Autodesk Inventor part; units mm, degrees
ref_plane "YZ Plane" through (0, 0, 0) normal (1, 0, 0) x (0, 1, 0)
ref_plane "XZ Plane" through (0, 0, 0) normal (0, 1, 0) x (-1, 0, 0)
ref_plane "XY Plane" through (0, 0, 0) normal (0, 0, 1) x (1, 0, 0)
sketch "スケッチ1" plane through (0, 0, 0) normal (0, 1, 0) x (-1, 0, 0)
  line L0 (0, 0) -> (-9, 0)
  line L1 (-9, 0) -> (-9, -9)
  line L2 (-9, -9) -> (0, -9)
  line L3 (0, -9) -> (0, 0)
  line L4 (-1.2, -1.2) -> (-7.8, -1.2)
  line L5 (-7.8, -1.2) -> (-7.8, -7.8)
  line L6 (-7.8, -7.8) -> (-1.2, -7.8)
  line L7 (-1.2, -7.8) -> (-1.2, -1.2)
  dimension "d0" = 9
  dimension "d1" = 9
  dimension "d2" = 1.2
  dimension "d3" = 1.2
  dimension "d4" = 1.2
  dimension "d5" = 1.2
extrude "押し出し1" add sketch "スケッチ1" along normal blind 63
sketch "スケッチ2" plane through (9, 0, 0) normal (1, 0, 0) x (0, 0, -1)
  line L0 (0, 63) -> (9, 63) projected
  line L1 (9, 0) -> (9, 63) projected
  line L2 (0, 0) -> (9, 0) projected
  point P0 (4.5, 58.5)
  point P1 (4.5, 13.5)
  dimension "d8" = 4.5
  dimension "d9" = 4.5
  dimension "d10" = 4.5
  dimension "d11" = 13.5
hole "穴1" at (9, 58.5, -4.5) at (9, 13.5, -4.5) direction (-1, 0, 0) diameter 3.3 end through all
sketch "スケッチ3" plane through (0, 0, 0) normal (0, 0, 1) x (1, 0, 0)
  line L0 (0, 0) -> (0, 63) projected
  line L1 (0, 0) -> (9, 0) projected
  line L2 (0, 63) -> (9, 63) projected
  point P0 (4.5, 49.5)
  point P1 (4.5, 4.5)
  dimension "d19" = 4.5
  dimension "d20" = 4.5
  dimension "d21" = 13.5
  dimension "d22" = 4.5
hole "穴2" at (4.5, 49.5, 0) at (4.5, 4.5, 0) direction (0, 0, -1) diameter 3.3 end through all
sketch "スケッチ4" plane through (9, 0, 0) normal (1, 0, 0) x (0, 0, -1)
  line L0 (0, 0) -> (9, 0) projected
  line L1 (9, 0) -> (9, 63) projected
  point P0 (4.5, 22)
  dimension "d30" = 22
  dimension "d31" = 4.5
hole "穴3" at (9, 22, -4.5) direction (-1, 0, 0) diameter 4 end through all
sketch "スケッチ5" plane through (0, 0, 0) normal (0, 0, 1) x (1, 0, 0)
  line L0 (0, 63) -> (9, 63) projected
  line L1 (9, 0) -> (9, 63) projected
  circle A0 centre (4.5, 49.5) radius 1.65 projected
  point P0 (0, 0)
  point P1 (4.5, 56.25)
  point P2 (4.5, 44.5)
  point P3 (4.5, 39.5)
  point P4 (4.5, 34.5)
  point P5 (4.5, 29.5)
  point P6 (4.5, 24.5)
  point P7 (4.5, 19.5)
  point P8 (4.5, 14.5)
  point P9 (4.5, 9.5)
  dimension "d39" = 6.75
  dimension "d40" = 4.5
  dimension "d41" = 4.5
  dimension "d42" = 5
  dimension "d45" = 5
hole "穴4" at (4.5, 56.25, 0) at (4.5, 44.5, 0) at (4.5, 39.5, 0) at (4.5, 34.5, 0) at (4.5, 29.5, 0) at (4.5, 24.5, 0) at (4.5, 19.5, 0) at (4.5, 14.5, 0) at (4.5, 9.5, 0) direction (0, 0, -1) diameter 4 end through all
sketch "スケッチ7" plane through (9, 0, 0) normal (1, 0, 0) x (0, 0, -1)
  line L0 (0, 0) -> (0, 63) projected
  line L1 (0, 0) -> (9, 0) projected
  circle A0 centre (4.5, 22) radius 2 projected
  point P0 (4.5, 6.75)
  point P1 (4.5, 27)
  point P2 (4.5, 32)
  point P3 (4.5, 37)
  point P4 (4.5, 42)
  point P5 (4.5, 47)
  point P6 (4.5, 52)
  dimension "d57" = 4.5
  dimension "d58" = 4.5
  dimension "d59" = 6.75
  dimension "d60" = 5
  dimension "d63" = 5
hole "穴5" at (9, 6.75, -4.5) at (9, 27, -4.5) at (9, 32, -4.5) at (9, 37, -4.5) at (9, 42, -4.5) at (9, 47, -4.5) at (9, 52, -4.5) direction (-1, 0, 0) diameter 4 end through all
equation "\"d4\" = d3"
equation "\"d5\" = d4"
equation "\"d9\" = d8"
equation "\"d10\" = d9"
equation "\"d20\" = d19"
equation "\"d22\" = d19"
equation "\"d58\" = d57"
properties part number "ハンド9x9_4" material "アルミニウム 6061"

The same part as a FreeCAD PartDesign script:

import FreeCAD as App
import Part
import Sketcher

doc = App.newDocument("Part")
body = doc.addObject("PartDesign::Body", "Body")

sketch1 = body.newObject("Sketcher::SketchObject", "Sketch")
sketch1.AttachmentSupport = (doc.getObject("XZ_Plane"), [""])
sketch1.MapMode = "FlatFace"
sketch1.addGeometry([
    Part.LineSegment(App.Vector(0, -9, 0), App.Vector(0, 0, 0)),
    Part.LineSegment(App.Vector(0, 0, 0), App.Vector(9, 0, 0)),
    Part.LineSegment(App.Vector(9, 0, 0), App.Vector(9, -9, 0)),
    Part.LineSegment(App.Vector(9, -9, 0), App.Vector(0, -9, 0)),
    Part.LineSegment(App.Vector(8, -1, 0), App.Vector(1, -1, 0)),
    Part.LineSegment(App.Vector(1, -1, 0), App.Vector(1, -8, 0)),
    Part.LineSegment(App.Vector(1, -8, 0), App.Vector(8, -8, 0)),
    Part.LineSegment(App.Vector(8, -8, 0), App.Vector(8, -1, 0)),
], False)
sketch1.addConstraint([
    Sketcher.Constraint("Coincident", 0, 2, 1, 1),
    Sketcher.Constraint("Coincident", 1, 2, 2, 1),
    Sketcher.Constraint("Coincident", 2, 2, 3, 1),
    Sketcher.Constraint("Coincident", 3, 2, 0, 1),
    Sketcher.Constraint("Coincident", 4, 2, 5, 1),
    Sketcher.Constraint("Coincident", 5, 2, 6, 1),
    Sketcher.Constraint("Coincident", 6, 2, 7, 1),
    Sketcher.Constraint("Coincident", 7, 2, 4, 1),
    Sketcher.Constraint("Vertical", 0),
    Sketcher.Constraint("Horizontal", 1),
    Sketcher.Constraint("Vertical", 2),
    Sketcher.Constraint("Horizontal", 3),
    Sketcher.Constraint("Horizontal", 4),
    Sketcher.Constraint("Vertical", 5),
    Sketcher.Constraint("Horizontal", 6),
    Sketcher.Constraint("Vertical", 7),
    Sketcher.Constraint("Coincident", 0, 2, -1, 1),
    Sketcher.Constraint("Equal", 3, 0),
    Sketcher.Constraint("Equal", 6, 5),
    Sketcher.Constraint("DistanceX", 1, 1, 1, 2, 9.0),
    Sketcher.Constraint("DistanceX", -1, 1, 4, 2, 1.2),
    Sketcher.Constraint("DistanceY", 4, 2, -1, 1, 1.2),
    Sketcher.Constraint("DistanceY", 3, 2, 5, 2, 1.2),
])
pad1 = body.newObject("PartDesign::Pad", "Pad")
pad1.Profile = sketch1
pad1.Length = 63
pad1.Reversed = True

sketch2 = body.newObject("Sketcher::SketchObject", "Sketch001")
sketch2.AttachmentSupport = (doc.getObject("YZ_Plane"), [""])
sketch2.MapMode = "FlatFace"
sketch2.AttachmentOffset = App.Placement(App.Vector(0, 0, 9), App.Rotation())
sketch2.addGeometry([
    Part.Circle(App.Vector(58.5, -4.5, 0), App.Vector(0, 0, 1), 1.6),
    Part.Circle(App.Vector(13.5, -4.5, 0), App.Vector(0, 0, 1), 1.6),
], False)
sketch2.addConstraint([
    Sketcher.Constraint("Equal", 0, 1),
    Sketcher.Constraint("Horizontal", 0, 3, 1, 3),
    Sketcher.Constraint("Diameter", 0, 3.3),
    Sketcher.Constraint("DistanceX", 1, 3, 0, 3, 45.0),
    Sketcher.Constraint("DistanceX", -1, 1, 0, 3, 58.5),
    Sketcher.Constraint("DistanceY", 0, 3, -1, 1, 4.5),
])
doc.recompute()
hole = body.newObject("PartDesign::Hole", "Hole")
hole.Profile = sketch2
hole.ThreadType = "None"
hole.Diameter = 3.3
hole.DepthType = "ThroughAll"

sketch3 = body.newObject("Sketcher::SketchObject", "Sketch002")
sketch3.AttachmentSupport = (doc.getObject("XY_Plane"), [""])
sketch3.MapMode = "FlatFace"
sketch3.addGeometry([
    Part.Circle(App.Vector(4.5, 49.5, 0), App.Vector(0, 0, 1), 1.6),
    Part.Circle(App.Vector(4.5, 4.5, 0), App.Vector(0, 0, 1), 1.6),
], False)
sketch3.addConstraint([
    Sketcher.Constraint("Equal", 0, 1),
    Sketcher.Constraint("Vertical", 0, 3, 1, 3),
    Sketcher.Constraint("Diameter", 0, 3.3),
    Sketcher.Constraint("DistanceY", 1, 3, 0, 3, 45.0),
    Sketcher.Constraint("DistanceX", -1, 1, 0, 3, 4.5),
    Sketcher.Constraint("DistanceY", -1, 1, 0, 3, 49.5),
])
doc.recompute()
hole2 = body.newObject("PartDesign::Hole", "Hole001")
hole2.Profile = sketch3
hole2.ThreadType = "None"
hole2.Diameter = 3.3
hole2.DepthType = "ThroughAll"

sketch4 = body.newObject("Sketcher::SketchObject", "Sketch003")
sketch4.AttachmentSupport = (doc.getObject("YZ_Plane"), [""])
sketch4.MapMode = "FlatFace"
sketch4.AttachmentOffset = App.Placement(App.Vector(0, 0, 9), App.Rotation())
sketch4.addGeometry(Part.Circle(App.Vector(22, -4.5, 0), App.Vector(0, 0, 1), 2), False)
sketch4.addConstraint([
    Sketcher.Constraint("Diameter", 0, 4.0),
    Sketcher.Constraint("DistanceX", -1, 1, 0, 3, 22.0),
    Sketcher.Constraint("DistanceY", 0, 3, -1, 1, 4.5),
])
doc.recompute()
hole3 = body.newObject("PartDesign::Hole", "Hole002")
hole3.Profile = sketch4
hole3.ThreadType = "None"
hole3.Diameter = 4
hole3.DepthType = "ThroughAll"

sketch5 = body.newObject("Sketcher::SketchObject", "Sketch004")
sketch5.AttachmentSupport = (doc.getObject("XY_Plane"), [""])
sketch5.MapMode = "FlatFace"
sketch5.addGeometry([
    Part.Circle(App.Vector(4.5, 56.2, 0), App.Vector(0, 0, 1), 2),
    Part.Circle(App.Vector(4.5, 44.5, 0), App.Vector(0, 0, 1), 2),
    Part.Circle(App.Vector(4.5, 39.5, 0), App.Vector(0, 0, 1), 2),
    Part.Circle(App.Vector(4.5, 34.5, 0), App.Vector(0, 0, 1), 2),
    Part.Circle(App.Vector(4.5, 29.5, 0), App.Vector(0, 0, 1), 2),
    Part.Circle(App.Vector(4.5, 24.5, 0), App.Vector(0, 0, 1), 2),
    Part.Circle(App.Vector(4.5, 19.5, 0), App.Vector(0, 0, 1), 2),
    Part.Circle(App.Vector(4.5, 14.5, 0), App.Vector(0, 0, 1), 2),
    Part.Circle(App.Vector(4.5, 9.5, 0), App.Vector(0, 0, 1), 2),
], False)
sketch5.addConstraint([
    Sketcher.Constraint("Equal", 0, 1),
    Sketcher.Constraint("Equal", 1, 2),
    Sketcher.Constraint("Equal", 2, 3),
    Sketcher.Constraint("Equal", 3, 4),
    Sketcher.Constraint("Equal", 4, 5),
    Sketcher.Constraint("Equal", 5, 6),
    Sketcher.Constraint("Equal", 6, 7),
    Sketcher.Constraint("Equal", 7, 8),
    Sketcher.Constraint("Vertical", 0, 3, 1, 3),
    Sketcher.Constraint("Vertical", 1, 3, 2, 3),
    Sketcher.Constraint("Vertical", 2, 3, 3, 3),
    Sketcher.Constraint("Vertical", 3, 3, 4, 3),
    Sketcher.Constraint("Vertical", 4, 3, 5, 3),
    Sketcher.Constraint("Vertical", 5, 3, 6, 3),
    Sketcher.Constraint("Vertical", 6, 3, 7, 3),
    Sketcher.Constraint("Vertical", 7, 3, 8, 3),
    Sketcher.Constraint("Diameter", 0, 4.0),
    Sketcher.Constraint("DistanceY", 2, 3, 1, 3, 5.0),
    Sketcher.Constraint("DistanceY", 3, 3, 2, 3, 5.0),
    Sketcher.Constraint("DistanceY", 4, 3, 3, 3, 5.0),
    Sketcher.Constraint("DistanceY", 5, 3, 4, 3, 5.0),
    Sketcher.Constraint("DistanceY", 6, 3, 5, 3, 5.0),
    Sketcher.Constraint("DistanceY", 7, 3, 6, 3, 5.0),
    Sketcher.Constraint("DistanceY", 8, 3, 7, 3, 5.0),
    Sketcher.Constraint("DistanceX", -1, 1, 0, 3, 4.5),
    Sketcher.Constraint("DistanceY", -1, 1, 1, 3, 44.5),
    Sketcher.Constraint("DistanceY", -1, 1, 0, 3, 56.25),
])
doc.recompute()
hole4 = body.newObject("PartDesign::Hole", "Hole003")
hole4.Profile = sketch5
hole4.ThreadType = "None"
hole4.Diameter = 4
hole4.DepthType = "ThroughAll"

sketch6 = body.newObject("Sketcher::SketchObject", "Sketch005")
sketch6.AttachmentSupport = (doc.getObject("YZ_Plane"), [""])
sketch6.MapMode = "FlatFace"
sketch6.AttachmentOffset = App.Placement(App.Vector(0, 0, 9), App.Rotation())
sketch6.addGeometry([
    Part.Circle(App.Vector(6.8, -4.5, 0), App.Vector(0, 0, 1), 2),
    Part.Circle(App.Vector(27, -4.5, 0), App.Vector(0, 0, 1), 2),
    Part.Circle(App.Vector(32, -4.5, 0), App.Vector(0, 0, 1), 2),
    Part.Circle(App.Vector(37, -4.5, 0), App.Vector(0, 0, 1), 2),
    Part.Circle(App.Vector(42, -4.5, 0), App.Vector(0, 0, 1), 2),
    Part.Circle(App.Vector(47, -4.5, 0), App.Vector(0, 0, 1), 2),
    Part.Circle(App.Vector(52, -4.5, 0), App.Vector(0, 0, 1), 2),
], False)
sketch6.addConstraint([
    Sketcher.Constraint("Equal", 0, 1),
    Sketcher.Constraint("Equal", 1, 2),
    Sketcher.Constraint("Equal", 2, 3),
    Sketcher.Constraint("Equal", 3, 4),
    Sketcher.Constraint("Equal", 4, 5),
    Sketcher.Constraint("Equal", 5, 6),
    Sketcher.Constraint("Horizontal", 0, 3, 1, 3),
    Sketcher.Constraint("Horizontal", 1, 3, 2, 3),
    Sketcher.Constraint("Horizontal", 2, 3, 3, 3),
    Sketcher.Constraint("Horizontal", 3, 3, 4, 3),
    Sketcher.Constraint("Horizontal", 4, 3, 5, 3),
    Sketcher.Constraint("Horizontal", 5, 3, 6, 3),
    Sketcher.Constraint("Diameter", 0, 4.0),
    Sketcher.Constraint("DistanceX", -1, 1, 1, 3, 27.0),
    Sketcher.Constraint("DistanceX", -1, 1, 2, 3, 32.0),
    Sketcher.Constraint("DistanceX", -1, 1, 3, 3, 37.0),
    Sketcher.Constraint("DistanceX", -1, 1, 4, 3, 42.0),
    Sketcher.Constraint("DistanceX", -1, 1, 5, 3, 47.0),
    Sketcher.Constraint("DistanceX", -1, 1, 6, 3, 52.0),
    Sketcher.Constraint("DistanceY", 0, 3, -1, 1, 4.5),
    Sketcher.Constraint("DistanceX", -1, 1, 0, 3, 6.75),
])
doc.recompute()
hole5 = body.newObject("PartDesign::Hole", "Hole004")
hole5.Profile = sketch6
hole5.ThreadType = "None"
hole5.Diameter = 4
hole5.DepthType = "ThroughAll"

doc.recompute()
